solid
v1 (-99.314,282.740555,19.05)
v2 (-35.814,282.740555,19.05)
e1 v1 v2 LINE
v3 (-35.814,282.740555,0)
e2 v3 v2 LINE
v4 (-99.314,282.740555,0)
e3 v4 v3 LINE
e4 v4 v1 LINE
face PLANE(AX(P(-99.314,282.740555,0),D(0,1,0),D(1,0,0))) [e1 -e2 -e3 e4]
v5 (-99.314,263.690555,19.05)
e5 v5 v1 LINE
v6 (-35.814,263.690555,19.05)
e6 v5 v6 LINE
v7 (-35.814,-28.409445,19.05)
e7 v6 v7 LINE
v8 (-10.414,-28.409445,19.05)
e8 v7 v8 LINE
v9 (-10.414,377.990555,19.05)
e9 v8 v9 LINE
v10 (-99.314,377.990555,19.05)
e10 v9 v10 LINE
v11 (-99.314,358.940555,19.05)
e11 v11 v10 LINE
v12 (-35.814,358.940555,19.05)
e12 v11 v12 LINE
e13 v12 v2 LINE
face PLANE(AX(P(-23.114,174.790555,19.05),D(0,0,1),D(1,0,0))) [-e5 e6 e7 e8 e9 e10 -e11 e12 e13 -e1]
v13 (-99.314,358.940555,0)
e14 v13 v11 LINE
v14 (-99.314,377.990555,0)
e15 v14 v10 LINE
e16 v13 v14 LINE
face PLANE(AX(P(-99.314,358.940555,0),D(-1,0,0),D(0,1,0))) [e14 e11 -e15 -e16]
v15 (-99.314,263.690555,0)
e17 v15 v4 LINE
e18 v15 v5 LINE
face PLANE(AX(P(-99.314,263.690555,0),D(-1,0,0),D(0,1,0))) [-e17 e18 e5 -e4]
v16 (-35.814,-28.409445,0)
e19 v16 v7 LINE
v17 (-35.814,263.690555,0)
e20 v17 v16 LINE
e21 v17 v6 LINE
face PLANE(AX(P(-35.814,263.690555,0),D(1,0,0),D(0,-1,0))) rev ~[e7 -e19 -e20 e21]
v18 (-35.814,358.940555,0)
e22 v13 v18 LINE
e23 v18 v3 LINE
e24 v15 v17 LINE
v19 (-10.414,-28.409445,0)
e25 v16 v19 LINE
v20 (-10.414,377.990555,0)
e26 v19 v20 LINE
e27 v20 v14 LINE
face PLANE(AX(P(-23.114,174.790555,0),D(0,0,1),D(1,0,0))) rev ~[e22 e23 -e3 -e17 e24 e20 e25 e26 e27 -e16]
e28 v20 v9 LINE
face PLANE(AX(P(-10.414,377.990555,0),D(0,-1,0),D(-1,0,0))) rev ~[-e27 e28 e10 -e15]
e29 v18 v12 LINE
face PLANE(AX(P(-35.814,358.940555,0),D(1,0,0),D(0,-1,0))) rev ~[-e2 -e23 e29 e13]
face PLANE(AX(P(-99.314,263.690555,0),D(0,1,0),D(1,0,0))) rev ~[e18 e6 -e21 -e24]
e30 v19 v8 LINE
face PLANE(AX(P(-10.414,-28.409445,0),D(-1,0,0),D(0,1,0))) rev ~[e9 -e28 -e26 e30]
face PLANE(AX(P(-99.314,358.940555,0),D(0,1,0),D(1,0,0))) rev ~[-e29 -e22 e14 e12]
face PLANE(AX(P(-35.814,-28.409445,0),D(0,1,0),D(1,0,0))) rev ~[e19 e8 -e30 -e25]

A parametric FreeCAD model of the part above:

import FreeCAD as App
import Part
import Sketcher
from FreeCAD import Vector
Q = App.Units.Quantity

doc = App.newDocument("Part")
body = doc.addObject("PartDesign::Body", "Body")

# Sketch on XY plane
sketch1 = body.newObject("Sketcher::SketchObject", "Sketch")
sketch1.AttachmentSupport = (doc.getObject("XY_Plane"), [""])
sketch1.MapMode = "FlatFace"
sketch1.addGeometry([
    Part.LineSegment(Vector(-36, -28, 0), Vector(-10, -28, 0)),  # 0
    Part.LineSegment(Vector(-10, -28, 0), Vector(-10, 378, 0)),  # 1
    Part.LineSegment(Vector(-10, 378, 0), Vector(-99, 378, 0)),  # 2
    Part.LineSegment(Vector(-99, 378, 0), Vector(-99, 359, 0)),  # 3
    Part.LineSegment(Vector(-99, 359, 0), Vector(-36, 359, 0)),  # 4
    Part.LineSegment(Vector(-36, 359, 0), Vector(-36, 283, 0)),  # 5
    Part.LineSegment(Vector(-36, 283, 0), Vector(-99, 283, 0)),  # 6
    Part.LineSegment(Vector(-99, 283, 0), Vector(-99, 264, 0)),  # 7
    Part.LineSegment(Vector(-99, 264, 0), Vector(-36, 264, 0)),  # 8
    Part.LineSegment(Vector(-36, 264, 0), Vector(-36, -28, 0)),  # 9
], False)
sketch1.addConstraint([
    Sketcher.Constraint("Coincident", 0, 2, 1, 1),
    Sketcher.Constraint("Coincident", 1, 2, 2, 1),
    Sketcher.Constraint("Coincident", 2, 2, 3, 1),
    Sketcher.Constraint("Coincident", 3, 2, 4, 1),
    Sketcher.Constraint("Coincident", 4, 2, 5, 1),
    Sketcher.Constraint("Coincident", 5, 2, 6, 1),
    Sketcher.Constraint("Coincident", 6, 2, 7, 1),
    Sketcher.Constraint("Coincident", 7, 2, 8, 1),
    Sketcher.Constraint("Coincident", 8, 2, 9, 1),
    Sketcher.Constraint("Coincident", 9, 2, 0, 1),
    Sketcher.Constraint("Horizontal", 0),
    Sketcher.Constraint("Vertical", 1),
    Sketcher.Constraint("Horizontal", 2),
    Sketcher.Constraint("Vertical", 3),
    Sketcher.Constraint("Horizontal", 4),
    Sketcher.Constraint("Vertical", 5),
    Sketcher.Constraint("Horizontal", 6),
    Sketcher.Constraint("Vertical", 7),
    Sketcher.Constraint("Horizontal", 8),
    Sketcher.Constraint("Vertical", 9),
    Sketcher.Constraint("Vertical", 3, 2, 6, 2),
    Sketcher.Constraint("Vertical", 5, 2, 8, 2),
    Sketcher.Constraint("Equal", 3, 7),
    Sketcher.Constraint("DistanceX", 0, 1, 0, 2, Q("1 in")),
    Sketcher.Constraint("DistanceY", 1, 1, 1, 2, Q("16 in")),
    Sketcher.Constraint("DistanceY", 5, 2, 5, 1, Q("3 in")),
    Sketcher.Constraint("DistanceX", 2, 2, 2, 1, Q("3.5 in")),
    Sketcher.Constraint("DistanceY", 9, 2, 9, 1, Q("11.5 in")),
    Sketcher.Constraint("DistanceX", 0, 2, -1, 1, Q("0.41 in")),
    Sketcher.Constraint("DistanceY", 0, 2, -1, 1, 28.409445),
])
pad1 = body.newObject("PartDesign::Pad", "Pad")
pad1.Profile = sketch1
pad1.Length = Q("0.75 in")

doc.recompute()
